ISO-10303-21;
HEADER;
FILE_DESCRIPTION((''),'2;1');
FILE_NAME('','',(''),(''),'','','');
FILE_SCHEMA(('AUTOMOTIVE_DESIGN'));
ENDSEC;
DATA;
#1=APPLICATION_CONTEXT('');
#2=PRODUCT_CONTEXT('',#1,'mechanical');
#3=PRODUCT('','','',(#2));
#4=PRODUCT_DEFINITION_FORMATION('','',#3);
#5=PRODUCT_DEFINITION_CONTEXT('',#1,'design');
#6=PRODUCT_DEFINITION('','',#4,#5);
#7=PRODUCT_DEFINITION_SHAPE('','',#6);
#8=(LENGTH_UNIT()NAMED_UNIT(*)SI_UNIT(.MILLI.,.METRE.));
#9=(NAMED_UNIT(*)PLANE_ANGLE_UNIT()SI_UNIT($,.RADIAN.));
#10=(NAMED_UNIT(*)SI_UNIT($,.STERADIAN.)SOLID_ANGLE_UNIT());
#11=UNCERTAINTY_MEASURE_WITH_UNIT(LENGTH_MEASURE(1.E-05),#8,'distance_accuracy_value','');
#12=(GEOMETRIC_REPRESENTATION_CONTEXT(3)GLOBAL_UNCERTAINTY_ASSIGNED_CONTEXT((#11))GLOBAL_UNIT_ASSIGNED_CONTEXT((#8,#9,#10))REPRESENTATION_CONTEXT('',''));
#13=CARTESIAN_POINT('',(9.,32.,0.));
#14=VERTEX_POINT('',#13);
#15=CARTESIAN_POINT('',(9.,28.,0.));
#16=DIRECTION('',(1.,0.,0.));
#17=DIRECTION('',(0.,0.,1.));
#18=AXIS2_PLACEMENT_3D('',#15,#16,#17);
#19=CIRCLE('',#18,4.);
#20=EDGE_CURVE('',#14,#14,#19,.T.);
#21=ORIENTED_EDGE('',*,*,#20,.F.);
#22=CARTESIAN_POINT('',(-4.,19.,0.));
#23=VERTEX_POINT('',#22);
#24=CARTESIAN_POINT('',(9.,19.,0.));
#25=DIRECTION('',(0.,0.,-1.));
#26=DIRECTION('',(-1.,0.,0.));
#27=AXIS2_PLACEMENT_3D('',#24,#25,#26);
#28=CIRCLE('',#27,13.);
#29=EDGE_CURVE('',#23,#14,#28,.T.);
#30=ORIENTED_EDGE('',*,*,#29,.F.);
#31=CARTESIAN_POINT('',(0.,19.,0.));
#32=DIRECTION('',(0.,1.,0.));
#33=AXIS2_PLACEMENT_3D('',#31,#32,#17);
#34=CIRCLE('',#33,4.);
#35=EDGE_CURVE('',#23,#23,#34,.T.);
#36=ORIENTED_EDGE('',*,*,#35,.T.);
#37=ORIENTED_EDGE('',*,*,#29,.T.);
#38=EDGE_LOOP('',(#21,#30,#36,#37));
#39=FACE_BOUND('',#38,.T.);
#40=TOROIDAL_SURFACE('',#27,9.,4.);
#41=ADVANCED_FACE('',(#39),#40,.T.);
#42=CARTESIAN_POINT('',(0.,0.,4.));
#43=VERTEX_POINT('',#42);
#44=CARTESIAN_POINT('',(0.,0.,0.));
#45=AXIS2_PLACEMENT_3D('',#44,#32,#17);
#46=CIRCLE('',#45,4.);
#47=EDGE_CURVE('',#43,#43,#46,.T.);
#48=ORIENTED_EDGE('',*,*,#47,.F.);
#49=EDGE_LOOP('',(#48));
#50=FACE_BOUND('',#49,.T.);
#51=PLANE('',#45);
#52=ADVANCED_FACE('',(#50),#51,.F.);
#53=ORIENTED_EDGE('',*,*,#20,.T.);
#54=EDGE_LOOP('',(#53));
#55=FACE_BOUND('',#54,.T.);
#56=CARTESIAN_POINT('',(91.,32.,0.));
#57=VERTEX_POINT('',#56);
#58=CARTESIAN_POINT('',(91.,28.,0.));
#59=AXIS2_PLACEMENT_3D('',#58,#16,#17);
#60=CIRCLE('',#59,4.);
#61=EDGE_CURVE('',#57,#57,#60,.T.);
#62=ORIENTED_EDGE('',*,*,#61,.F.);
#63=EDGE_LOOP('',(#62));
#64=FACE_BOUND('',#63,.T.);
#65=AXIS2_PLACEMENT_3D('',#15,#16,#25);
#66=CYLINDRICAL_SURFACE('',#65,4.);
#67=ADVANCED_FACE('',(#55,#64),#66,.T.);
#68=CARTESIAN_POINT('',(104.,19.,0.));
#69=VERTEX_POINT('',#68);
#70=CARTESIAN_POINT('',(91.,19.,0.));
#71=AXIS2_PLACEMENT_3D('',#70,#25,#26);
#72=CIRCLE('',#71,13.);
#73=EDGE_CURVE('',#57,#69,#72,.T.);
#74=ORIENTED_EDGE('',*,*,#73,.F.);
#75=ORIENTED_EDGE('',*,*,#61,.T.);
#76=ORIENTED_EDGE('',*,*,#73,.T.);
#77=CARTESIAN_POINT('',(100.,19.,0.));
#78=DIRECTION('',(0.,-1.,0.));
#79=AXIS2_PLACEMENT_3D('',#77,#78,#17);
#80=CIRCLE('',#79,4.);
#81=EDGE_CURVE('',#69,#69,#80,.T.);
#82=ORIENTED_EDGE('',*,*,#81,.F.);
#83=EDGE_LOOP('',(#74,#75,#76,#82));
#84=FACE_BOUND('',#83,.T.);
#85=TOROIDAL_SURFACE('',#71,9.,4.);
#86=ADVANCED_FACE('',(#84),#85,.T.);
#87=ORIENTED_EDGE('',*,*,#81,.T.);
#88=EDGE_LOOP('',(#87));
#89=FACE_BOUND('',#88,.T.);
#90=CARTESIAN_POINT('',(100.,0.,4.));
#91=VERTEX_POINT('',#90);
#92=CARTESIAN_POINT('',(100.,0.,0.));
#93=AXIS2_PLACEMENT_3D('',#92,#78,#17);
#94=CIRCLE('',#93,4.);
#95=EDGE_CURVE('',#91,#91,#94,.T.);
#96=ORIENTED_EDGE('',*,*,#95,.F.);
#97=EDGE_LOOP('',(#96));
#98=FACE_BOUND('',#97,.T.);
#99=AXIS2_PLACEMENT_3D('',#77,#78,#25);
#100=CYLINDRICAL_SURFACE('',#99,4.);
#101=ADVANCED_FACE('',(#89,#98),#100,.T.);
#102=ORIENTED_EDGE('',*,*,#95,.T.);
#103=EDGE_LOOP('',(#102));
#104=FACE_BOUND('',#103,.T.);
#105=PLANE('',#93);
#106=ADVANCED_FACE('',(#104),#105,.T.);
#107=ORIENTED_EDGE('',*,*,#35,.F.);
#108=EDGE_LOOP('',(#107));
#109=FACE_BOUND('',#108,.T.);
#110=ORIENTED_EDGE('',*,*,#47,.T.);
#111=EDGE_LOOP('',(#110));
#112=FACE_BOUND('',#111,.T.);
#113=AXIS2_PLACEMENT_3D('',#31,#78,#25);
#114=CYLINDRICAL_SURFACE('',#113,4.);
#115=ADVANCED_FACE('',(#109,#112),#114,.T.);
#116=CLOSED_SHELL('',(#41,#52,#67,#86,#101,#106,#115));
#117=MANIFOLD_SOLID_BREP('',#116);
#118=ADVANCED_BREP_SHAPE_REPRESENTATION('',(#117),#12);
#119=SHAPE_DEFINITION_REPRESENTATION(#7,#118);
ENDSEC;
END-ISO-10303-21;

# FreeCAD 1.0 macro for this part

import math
import FreeCAD as App
import Part
import Sketcher

V = App.Vector
Q = App.Units.Quantity

doc = App.newDocument("Part")
params = doc.addObject("Spreadsheet::Sheet", "Params")
for row, (alias, value) in enumerate([
    ("sketch1_diameter", "8 mm"),
    ("sketch2_radius", "9 mm"),
    ("sketch2_width", "82 mm"),
    ("sketch2_height", "19 mm"),
], start=1):
    params.set(f"A{row}", alias)
    params.set(f"B{row}", "=" + value)
    params.setAlias(f"B{row}", alias)

body = doc.addObject("PartDesign::Body", "Body")

sketch1 = body.newObject("Sketcher::SketchObject", "Sketch")
sketch1.AttachmentSupport = (doc.getObject("XZ_Plane"), [""])
sketch1.MapMode = "FlatFace"
sketch1.addGeometry(Part.Circle(V(0, 0, 0), V(0, 0, 1), 4), False)
sketch1.addConstraint([
    Sketcher.Constraint("Coincident", 0, 3, -1, 1),
    Sketcher.Constraint("Diameter", 0, Q("8 mm")),
])
sketch1.setExpression("Constraints[1]", "Params.sketch1_diameter")

sketch2 = body.newObject("Sketcher::SketchObject", "Sketch001")
sketch2.AttachmentSupport = (doc.getObject("XY_Plane"), [""])
sketch2.MapMode = "FlatFace"
sketch2.addGeometry([
    Part.LineSegment(V(0, 0, 0), V(0, 19, 0)),
    Part.ArcOfCircle(Part.Circle(V(9, 19, 0), V(0, 0, 1), 9), math.radians(90), math.radians(180)),
    Part.LineSegment(V(9, 28, 0), V(91, 28, 0)),
    Part.ArcOfCircle(Part.Circle(V(91, 19, 0), V(0, 0, 1), 9), math.radians(0), math.radians(90)),
    Part.LineSegment(V(100, 19, 0), V(100, 0, 0)),
], False)
sketch2.addConstraint([
    Sketcher.Constraint("Tangent", 0, 2, 1, 2),
    Sketcher.Constraint("Tangent", 1, 1, 2, 1),
    Sketcher.Constraint("Tangent", 2, 2, 3, 2),
    Sketcher.Constraint("Tangent", 3, 1, 4, 1),
    Sketcher.Constraint("Vertical", 0),
    Sketcher.Constraint("Horizontal", 2),
    Sketcher.Constraint("Vertical", 4),
    Sketcher.Constraint("Coincident", 0, 1, -1, 1),
    Sketcher.Constraint("Equal", 1, 3),
    Sketcher.Constraint("PointOnObject", 4, 2, -1),
    Sketcher.Constraint("Radius", 1, Q("9 mm")),
    Sketcher.Constraint("DistanceX", 2, 1, 2, 2, Q("82 mm")),
    Sketcher.Constraint("DistanceY", 0, 1, 0, 2, Q("19 mm")),
])
sketch2.setExpression("Constraints[10]", "Params.sketch2_radius")
sketch2.setExpression("Constraints[11]", "Params.sketch2_width")
sketch2.setExpression("Constraints[12]", "Params.sketch2_height")
doc.recompute()

additivepipe = body.newObject("PartDesign::AdditivePipe", "AdditivePipe")
additivepipe.Profile = sketch1
additivepipe.Spine = (sketch2, ["Edge1", "Edge2", "Edge3", "Edge4", "Edge5"])

doc.recompute()
